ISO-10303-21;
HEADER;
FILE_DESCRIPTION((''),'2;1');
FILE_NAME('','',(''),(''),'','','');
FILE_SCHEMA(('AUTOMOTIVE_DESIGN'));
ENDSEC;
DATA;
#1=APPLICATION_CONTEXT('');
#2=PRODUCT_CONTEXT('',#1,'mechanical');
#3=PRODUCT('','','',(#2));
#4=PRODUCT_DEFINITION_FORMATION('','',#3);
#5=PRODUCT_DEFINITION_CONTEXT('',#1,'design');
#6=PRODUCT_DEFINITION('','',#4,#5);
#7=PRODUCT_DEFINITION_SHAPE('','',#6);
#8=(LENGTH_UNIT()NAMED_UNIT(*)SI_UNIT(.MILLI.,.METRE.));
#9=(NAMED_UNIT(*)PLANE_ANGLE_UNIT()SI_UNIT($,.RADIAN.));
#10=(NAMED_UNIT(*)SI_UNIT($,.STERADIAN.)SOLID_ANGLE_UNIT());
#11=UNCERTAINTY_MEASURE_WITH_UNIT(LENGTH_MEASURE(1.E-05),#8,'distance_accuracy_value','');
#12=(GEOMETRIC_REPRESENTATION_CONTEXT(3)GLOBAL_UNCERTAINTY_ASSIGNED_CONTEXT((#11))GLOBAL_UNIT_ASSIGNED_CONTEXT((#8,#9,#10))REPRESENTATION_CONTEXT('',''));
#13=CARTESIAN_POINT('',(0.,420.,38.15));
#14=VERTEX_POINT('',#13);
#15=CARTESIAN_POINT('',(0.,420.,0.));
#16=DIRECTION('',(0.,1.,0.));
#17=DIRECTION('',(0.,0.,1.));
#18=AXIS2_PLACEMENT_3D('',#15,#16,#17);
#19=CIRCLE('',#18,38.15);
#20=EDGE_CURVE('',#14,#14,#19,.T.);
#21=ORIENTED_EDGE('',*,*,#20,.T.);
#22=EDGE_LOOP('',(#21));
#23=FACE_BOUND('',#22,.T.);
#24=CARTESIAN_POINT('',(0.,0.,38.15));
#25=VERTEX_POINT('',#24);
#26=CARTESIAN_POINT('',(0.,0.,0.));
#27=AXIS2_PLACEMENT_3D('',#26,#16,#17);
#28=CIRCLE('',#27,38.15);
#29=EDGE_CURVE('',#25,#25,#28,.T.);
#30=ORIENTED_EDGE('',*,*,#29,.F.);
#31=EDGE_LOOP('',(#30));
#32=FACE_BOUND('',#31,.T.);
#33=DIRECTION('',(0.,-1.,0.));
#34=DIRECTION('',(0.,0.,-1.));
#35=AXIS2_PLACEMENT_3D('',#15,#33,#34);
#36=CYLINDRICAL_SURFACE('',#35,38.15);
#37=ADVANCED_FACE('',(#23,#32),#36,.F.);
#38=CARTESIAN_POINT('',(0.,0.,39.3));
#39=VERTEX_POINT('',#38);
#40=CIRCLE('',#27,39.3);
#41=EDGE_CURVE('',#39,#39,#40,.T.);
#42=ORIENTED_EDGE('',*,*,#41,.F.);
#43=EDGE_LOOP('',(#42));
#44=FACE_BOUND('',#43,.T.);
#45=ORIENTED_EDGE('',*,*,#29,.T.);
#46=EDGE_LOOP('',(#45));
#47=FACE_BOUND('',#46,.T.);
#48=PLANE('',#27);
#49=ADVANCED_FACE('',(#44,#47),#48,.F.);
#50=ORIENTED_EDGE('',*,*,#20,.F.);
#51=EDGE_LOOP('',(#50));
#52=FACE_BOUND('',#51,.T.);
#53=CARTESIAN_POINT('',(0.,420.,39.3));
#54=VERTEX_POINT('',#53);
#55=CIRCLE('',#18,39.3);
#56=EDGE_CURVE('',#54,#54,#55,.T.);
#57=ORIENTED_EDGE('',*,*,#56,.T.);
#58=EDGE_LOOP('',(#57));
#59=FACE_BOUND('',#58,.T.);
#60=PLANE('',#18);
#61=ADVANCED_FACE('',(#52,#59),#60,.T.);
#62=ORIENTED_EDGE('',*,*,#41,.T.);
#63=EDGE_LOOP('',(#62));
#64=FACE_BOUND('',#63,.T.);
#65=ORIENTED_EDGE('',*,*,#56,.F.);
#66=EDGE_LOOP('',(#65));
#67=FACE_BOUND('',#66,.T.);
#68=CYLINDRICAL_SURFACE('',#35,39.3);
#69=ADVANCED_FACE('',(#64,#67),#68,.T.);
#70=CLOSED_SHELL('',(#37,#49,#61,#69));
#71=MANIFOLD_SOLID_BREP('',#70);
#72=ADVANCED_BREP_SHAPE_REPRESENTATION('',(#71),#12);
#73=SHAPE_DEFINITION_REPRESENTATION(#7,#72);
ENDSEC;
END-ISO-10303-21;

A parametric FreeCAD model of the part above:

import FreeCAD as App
import Part
import Sketcher
Q = App.Units.Quantity

doc = App.newDocument("Part")
body = doc.addObject("PartDesign::Body", "Body")

# Sketch on XZ plane
sketch1 = doc.addObject("Sketcher::SketchObject", "Sketch")
body.addObject(sketch1)
sketch1.AttachmentSupport = (doc.XZ_Plane, [""])
sketch1.MapMode = "FlatFace"
sketch1.addGeometry([
    Part.Circle(App.Vector(0, 0, 0), App.Vector(0, 0, 1), 39),
    Part.Circle(App.Vector(0, 0, 0), App.Vector(0, 0, 1), 38),
], False)
sketch1.addConstraint([
    Sketcher.Constraint("Coincident", 0, 3, -1, 1),
    Sketcher.Constraint("Coincident", 1, 3, -1, 1),
    Sketcher.Constraint("Diameter", 0, Q("78.6 mm")),
    Sketcher.Constraint("Diameter", 1, Q("76.3 mm")),
])
pad1 = doc.addObject("PartDesign::Pad", "Pad")
body.addObject(pad1)
pad1.Profile = sketch1
pad1.Length = 420
pad1.Reversed = True

doc.recompute()
